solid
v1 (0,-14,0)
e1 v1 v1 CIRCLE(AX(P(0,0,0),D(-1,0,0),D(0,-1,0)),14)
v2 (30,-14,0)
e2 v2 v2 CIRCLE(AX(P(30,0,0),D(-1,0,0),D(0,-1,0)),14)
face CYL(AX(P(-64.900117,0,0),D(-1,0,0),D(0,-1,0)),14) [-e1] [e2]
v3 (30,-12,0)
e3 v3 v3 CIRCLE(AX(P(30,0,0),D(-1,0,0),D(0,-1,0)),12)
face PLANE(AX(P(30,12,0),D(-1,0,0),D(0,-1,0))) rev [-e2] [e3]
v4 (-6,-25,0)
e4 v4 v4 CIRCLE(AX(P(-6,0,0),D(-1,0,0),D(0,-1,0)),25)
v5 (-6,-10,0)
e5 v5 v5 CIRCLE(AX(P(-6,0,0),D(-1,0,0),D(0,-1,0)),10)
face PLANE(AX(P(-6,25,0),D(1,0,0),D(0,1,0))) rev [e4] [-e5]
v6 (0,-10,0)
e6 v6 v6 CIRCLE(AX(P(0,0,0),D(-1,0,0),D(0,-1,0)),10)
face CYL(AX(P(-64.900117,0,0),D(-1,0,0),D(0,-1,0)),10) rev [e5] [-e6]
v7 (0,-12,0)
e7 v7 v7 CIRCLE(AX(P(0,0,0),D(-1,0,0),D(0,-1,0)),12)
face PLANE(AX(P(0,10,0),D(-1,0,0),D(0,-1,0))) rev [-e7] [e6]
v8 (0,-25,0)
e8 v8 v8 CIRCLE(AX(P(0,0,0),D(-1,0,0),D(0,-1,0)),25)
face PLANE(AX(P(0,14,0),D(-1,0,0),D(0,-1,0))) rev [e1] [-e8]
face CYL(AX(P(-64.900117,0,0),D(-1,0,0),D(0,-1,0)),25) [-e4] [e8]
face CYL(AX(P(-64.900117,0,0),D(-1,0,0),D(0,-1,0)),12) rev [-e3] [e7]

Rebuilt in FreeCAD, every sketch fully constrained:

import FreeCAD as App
import Part
import Sketcher
Q = App.Units.Quantity


def add_polygon(sketch, points):
    """Adds a closed chain of lines whose ends are joined by coincident constraints."""
    first, n = sketch.GeometryCount, len(points)
    for a, b in zip(points, points[1:] + points[:1]):
        sketch.addGeometry(Part.LineSegment(App.Vector(*a, 0), App.Vector(*b, 0)), False)
    for i in range(n):
        sketch.addConstraint(Sketcher.Constraint("Coincident", first + i, 2, first + (i + 1) % n, 1))

doc = App.newDocument("Part")
body = doc.addObject("PartDesign::Body", "Body")

sketch1 = body.newObject("Sketcher::SketchObject", "Sketch")
sketch1.AttachmentSupport = (doc.getObject("XY_Plane"), [""])
sketch1.MapMode = "FlatFace"
add_polygon(sketch1, [(-6, 25), (-6, 10), (0, 10), (0, 12), (30, 12), (30, 14), (0, 14), (0, 25)])
sketch1.addConstraint(Sketcher.Constraint("Vertical", 0))
sketch1.addConstraint(Sketcher.Constraint("Horizontal", 1))
sketch1.addConstraint(Sketcher.Constraint("Vertical", 2))
sketch1.addConstraint(Sketcher.Constraint("Horizontal", 3))
sketch1.addConstraint(Sketcher.Constraint("Vertical", 4))
sketch1.addConstraint(Sketcher.Constraint("Horizontal", 5))
sketch1.addConstraint(Sketcher.Constraint("Vertical", 6))
sketch1.addConstraint(Sketcher.Constraint("Horizontal", 7))
sketch1.addConstraint(Sketcher.Constraint("PointOnObject", 1, 2, -2))
sketch1.addConstraint(Sketcher.Constraint("PointOnObject", 5, 2, -2))
sketch1.addConstraint(Sketcher.Constraint("Equal", 2, 4))
sketch1.addConstraint(Sketcher.Constraint("DistanceX", 1, 1, 1, 2, Q("6 mm")))
sketch1.addConstraint(Sketcher.Constraint("DistanceX", 3, 1, 3, 2, Q("30 mm")))
sketch1.addConstraint(Sketcher.Constraint("DistanceY", 0, 2, 0, 1, Q("15 mm")))
sketch1.addConstraint(Sketcher.Constraint("DistanceY", 2, 1, 2, 2, Q("2 mm")))
sketch1.addConstraint(Sketcher.Constraint("DistanceY", -1, 1, 0, 2, Q("10 mm")))
revolution = body.newObject("PartDesign::Revolution", "Revolution")
revolution.Profile = sketch1
revolution.ReferenceAxis = (sketch1, ["H_Axis"])
revolution.Angle = 360

doc.recompute()
